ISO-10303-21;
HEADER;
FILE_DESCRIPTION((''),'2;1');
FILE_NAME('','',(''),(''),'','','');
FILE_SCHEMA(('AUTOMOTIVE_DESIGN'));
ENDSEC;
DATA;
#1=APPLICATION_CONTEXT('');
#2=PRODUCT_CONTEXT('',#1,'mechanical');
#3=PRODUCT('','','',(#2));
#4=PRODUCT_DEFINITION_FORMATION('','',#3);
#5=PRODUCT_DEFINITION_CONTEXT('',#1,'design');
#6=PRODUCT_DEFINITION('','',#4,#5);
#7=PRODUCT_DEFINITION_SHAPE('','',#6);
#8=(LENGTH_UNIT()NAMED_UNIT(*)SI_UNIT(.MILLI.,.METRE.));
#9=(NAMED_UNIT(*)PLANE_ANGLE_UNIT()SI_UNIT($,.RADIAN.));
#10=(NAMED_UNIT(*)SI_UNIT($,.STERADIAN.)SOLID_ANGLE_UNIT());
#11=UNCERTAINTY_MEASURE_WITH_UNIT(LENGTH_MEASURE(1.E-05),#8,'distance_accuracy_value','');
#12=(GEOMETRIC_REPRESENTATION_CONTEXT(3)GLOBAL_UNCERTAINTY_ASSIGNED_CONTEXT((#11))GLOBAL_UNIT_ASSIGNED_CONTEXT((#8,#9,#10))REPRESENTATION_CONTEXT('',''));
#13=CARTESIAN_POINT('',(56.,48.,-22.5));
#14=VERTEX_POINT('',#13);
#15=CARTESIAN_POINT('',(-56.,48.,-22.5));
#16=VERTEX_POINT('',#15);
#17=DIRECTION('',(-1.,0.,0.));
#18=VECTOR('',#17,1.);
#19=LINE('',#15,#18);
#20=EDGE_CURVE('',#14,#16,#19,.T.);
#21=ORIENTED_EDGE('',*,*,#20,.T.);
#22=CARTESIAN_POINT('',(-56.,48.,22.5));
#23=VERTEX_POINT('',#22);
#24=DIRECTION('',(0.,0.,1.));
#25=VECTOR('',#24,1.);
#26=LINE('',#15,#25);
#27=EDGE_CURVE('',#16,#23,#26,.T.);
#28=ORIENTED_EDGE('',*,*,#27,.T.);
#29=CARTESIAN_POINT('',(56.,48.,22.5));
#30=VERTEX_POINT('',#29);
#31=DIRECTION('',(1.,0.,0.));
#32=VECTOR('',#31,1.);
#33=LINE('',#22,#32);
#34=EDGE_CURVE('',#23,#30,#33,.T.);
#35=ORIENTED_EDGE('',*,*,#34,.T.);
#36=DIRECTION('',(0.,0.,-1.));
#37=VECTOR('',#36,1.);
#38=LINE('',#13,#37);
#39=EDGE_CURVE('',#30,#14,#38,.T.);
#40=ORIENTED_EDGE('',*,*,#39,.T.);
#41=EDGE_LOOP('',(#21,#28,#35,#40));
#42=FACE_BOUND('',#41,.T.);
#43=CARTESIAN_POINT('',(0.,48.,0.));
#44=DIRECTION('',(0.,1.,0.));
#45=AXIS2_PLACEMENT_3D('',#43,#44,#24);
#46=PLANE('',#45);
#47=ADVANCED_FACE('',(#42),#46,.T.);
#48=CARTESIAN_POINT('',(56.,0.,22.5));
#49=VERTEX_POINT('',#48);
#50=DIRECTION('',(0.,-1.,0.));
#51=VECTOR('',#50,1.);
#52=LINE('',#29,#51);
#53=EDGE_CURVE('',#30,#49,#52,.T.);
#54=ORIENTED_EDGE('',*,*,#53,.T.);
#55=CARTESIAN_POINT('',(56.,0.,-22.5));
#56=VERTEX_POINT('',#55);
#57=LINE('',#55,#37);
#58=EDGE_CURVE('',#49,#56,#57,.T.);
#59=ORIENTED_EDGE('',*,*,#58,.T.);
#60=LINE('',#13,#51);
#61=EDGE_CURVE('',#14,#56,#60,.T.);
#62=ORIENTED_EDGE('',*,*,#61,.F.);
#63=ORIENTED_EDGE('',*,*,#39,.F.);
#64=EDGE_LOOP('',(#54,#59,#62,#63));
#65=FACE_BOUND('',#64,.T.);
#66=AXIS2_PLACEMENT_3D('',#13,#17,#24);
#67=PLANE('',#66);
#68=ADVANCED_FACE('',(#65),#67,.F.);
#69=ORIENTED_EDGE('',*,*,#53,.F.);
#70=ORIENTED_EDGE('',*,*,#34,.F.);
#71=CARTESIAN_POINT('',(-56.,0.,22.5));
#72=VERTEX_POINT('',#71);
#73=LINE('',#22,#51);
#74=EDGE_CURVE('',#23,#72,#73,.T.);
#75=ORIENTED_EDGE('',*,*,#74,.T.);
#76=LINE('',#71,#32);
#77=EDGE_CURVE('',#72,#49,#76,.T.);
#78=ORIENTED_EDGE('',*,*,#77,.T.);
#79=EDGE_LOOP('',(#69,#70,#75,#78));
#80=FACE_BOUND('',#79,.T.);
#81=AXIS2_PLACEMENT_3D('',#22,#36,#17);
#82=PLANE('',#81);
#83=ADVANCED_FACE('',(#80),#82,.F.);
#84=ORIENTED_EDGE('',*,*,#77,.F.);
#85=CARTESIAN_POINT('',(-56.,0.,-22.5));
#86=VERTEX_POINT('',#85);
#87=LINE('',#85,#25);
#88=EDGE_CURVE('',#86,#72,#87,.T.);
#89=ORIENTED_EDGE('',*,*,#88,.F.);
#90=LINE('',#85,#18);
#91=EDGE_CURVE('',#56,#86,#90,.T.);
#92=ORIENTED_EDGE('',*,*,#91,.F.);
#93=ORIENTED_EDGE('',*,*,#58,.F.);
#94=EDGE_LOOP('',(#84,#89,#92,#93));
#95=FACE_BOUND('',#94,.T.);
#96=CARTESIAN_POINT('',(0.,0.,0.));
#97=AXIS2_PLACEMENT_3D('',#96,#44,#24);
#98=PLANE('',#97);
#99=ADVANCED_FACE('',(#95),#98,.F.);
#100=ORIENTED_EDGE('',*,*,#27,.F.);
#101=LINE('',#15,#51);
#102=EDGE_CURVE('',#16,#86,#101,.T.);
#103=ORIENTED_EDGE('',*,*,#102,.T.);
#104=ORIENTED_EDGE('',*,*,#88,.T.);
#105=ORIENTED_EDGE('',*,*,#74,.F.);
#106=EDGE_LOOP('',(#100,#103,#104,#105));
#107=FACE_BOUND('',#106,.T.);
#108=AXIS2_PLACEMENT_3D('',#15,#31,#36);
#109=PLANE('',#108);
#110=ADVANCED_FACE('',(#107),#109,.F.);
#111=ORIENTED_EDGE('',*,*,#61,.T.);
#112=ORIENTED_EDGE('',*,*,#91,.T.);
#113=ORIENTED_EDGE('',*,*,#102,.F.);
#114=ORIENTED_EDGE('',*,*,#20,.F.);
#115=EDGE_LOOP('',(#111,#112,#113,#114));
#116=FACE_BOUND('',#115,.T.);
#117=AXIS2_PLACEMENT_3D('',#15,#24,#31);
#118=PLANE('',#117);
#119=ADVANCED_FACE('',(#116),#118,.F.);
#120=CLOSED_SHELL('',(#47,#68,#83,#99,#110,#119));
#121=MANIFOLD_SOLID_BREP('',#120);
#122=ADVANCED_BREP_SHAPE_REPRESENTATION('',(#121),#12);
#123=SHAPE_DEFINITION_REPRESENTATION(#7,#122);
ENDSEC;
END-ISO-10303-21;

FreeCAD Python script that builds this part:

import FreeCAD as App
import Part
import Sketcher
from FreeCAD import Vector
Q = App.Units.Quantity

doc = App.newDocument("Part")
body = doc.addObject("PartDesign::Body", "Body")

# Sketch on XZ plane
sketch1 = body.newObject("Sketcher::SketchObject", "Sketch")
sketch1.AttachmentSupport = (doc.getObject("XZ_Plane"), [""])
sketch1.MapMode = "FlatFace"
sketch1.addGeometry(Part.LineSegment(Vector(-56, -22.5, 0), Vector(-56, 22.5, 0)), False)
sketch1.addGeometry(Part.LineSegment(Vector(-56, 22.5, 0), Vector(56, 22.5, 0)), False)
sketch1.addGeometry(Part.LineSegment(Vector(56, 22.5, 0), Vector(56, -22.5, 0)), False)
sketch1.addGeometry(Part.LineSegment(Vector(56, -22.5, 0), Vector(-56, -22.5, 0)), False)
sketch1.addConstraint(Sketcher.Constraint("Coincident", 0, 2, 1, 1))
sketch1.addConstraint(Sketcher.Constraint("Coincident", 1, 2, 2, 1))
sketch1.addConstraint(Sketcher.Constraint("Coincident", 2, 2, 3, 1))
sketch1.addConstraint(Sketcher.Constraint("Coincident", 3, 2, 0, 1))
sketch1.addConstraint(Sketcher.Constraint("Vertical", 0))
sketch1.addConstraint(Sketcher.Constraint("Horizontal", 1))
sketch1.addConstraint(Sketcher.Constraint("Vertical", 2))
sketch1.addConstraint(Sketcher.Constraint("Horizontal", 3))
sketch1.addConstraint(Sketcher.Constraint("Symmetric", 0, 2, 2, 2, -1, 1))
sketch1.addConstraint(Sketcher.Constraint("DistanceX", 1, 1, 1, 2, Q("112 mm")))
sketch1.addConstraint(Sketcher.Constraint("DistanceY", 0, 1, 0, 2, Q("45 mm")))
pad1 = body.newObject("PartDesign::Pad", "Pad")
pad1.Profile = sketch1
pad1.Length = 48
pad1.Reversed = True

doc.recompute()
